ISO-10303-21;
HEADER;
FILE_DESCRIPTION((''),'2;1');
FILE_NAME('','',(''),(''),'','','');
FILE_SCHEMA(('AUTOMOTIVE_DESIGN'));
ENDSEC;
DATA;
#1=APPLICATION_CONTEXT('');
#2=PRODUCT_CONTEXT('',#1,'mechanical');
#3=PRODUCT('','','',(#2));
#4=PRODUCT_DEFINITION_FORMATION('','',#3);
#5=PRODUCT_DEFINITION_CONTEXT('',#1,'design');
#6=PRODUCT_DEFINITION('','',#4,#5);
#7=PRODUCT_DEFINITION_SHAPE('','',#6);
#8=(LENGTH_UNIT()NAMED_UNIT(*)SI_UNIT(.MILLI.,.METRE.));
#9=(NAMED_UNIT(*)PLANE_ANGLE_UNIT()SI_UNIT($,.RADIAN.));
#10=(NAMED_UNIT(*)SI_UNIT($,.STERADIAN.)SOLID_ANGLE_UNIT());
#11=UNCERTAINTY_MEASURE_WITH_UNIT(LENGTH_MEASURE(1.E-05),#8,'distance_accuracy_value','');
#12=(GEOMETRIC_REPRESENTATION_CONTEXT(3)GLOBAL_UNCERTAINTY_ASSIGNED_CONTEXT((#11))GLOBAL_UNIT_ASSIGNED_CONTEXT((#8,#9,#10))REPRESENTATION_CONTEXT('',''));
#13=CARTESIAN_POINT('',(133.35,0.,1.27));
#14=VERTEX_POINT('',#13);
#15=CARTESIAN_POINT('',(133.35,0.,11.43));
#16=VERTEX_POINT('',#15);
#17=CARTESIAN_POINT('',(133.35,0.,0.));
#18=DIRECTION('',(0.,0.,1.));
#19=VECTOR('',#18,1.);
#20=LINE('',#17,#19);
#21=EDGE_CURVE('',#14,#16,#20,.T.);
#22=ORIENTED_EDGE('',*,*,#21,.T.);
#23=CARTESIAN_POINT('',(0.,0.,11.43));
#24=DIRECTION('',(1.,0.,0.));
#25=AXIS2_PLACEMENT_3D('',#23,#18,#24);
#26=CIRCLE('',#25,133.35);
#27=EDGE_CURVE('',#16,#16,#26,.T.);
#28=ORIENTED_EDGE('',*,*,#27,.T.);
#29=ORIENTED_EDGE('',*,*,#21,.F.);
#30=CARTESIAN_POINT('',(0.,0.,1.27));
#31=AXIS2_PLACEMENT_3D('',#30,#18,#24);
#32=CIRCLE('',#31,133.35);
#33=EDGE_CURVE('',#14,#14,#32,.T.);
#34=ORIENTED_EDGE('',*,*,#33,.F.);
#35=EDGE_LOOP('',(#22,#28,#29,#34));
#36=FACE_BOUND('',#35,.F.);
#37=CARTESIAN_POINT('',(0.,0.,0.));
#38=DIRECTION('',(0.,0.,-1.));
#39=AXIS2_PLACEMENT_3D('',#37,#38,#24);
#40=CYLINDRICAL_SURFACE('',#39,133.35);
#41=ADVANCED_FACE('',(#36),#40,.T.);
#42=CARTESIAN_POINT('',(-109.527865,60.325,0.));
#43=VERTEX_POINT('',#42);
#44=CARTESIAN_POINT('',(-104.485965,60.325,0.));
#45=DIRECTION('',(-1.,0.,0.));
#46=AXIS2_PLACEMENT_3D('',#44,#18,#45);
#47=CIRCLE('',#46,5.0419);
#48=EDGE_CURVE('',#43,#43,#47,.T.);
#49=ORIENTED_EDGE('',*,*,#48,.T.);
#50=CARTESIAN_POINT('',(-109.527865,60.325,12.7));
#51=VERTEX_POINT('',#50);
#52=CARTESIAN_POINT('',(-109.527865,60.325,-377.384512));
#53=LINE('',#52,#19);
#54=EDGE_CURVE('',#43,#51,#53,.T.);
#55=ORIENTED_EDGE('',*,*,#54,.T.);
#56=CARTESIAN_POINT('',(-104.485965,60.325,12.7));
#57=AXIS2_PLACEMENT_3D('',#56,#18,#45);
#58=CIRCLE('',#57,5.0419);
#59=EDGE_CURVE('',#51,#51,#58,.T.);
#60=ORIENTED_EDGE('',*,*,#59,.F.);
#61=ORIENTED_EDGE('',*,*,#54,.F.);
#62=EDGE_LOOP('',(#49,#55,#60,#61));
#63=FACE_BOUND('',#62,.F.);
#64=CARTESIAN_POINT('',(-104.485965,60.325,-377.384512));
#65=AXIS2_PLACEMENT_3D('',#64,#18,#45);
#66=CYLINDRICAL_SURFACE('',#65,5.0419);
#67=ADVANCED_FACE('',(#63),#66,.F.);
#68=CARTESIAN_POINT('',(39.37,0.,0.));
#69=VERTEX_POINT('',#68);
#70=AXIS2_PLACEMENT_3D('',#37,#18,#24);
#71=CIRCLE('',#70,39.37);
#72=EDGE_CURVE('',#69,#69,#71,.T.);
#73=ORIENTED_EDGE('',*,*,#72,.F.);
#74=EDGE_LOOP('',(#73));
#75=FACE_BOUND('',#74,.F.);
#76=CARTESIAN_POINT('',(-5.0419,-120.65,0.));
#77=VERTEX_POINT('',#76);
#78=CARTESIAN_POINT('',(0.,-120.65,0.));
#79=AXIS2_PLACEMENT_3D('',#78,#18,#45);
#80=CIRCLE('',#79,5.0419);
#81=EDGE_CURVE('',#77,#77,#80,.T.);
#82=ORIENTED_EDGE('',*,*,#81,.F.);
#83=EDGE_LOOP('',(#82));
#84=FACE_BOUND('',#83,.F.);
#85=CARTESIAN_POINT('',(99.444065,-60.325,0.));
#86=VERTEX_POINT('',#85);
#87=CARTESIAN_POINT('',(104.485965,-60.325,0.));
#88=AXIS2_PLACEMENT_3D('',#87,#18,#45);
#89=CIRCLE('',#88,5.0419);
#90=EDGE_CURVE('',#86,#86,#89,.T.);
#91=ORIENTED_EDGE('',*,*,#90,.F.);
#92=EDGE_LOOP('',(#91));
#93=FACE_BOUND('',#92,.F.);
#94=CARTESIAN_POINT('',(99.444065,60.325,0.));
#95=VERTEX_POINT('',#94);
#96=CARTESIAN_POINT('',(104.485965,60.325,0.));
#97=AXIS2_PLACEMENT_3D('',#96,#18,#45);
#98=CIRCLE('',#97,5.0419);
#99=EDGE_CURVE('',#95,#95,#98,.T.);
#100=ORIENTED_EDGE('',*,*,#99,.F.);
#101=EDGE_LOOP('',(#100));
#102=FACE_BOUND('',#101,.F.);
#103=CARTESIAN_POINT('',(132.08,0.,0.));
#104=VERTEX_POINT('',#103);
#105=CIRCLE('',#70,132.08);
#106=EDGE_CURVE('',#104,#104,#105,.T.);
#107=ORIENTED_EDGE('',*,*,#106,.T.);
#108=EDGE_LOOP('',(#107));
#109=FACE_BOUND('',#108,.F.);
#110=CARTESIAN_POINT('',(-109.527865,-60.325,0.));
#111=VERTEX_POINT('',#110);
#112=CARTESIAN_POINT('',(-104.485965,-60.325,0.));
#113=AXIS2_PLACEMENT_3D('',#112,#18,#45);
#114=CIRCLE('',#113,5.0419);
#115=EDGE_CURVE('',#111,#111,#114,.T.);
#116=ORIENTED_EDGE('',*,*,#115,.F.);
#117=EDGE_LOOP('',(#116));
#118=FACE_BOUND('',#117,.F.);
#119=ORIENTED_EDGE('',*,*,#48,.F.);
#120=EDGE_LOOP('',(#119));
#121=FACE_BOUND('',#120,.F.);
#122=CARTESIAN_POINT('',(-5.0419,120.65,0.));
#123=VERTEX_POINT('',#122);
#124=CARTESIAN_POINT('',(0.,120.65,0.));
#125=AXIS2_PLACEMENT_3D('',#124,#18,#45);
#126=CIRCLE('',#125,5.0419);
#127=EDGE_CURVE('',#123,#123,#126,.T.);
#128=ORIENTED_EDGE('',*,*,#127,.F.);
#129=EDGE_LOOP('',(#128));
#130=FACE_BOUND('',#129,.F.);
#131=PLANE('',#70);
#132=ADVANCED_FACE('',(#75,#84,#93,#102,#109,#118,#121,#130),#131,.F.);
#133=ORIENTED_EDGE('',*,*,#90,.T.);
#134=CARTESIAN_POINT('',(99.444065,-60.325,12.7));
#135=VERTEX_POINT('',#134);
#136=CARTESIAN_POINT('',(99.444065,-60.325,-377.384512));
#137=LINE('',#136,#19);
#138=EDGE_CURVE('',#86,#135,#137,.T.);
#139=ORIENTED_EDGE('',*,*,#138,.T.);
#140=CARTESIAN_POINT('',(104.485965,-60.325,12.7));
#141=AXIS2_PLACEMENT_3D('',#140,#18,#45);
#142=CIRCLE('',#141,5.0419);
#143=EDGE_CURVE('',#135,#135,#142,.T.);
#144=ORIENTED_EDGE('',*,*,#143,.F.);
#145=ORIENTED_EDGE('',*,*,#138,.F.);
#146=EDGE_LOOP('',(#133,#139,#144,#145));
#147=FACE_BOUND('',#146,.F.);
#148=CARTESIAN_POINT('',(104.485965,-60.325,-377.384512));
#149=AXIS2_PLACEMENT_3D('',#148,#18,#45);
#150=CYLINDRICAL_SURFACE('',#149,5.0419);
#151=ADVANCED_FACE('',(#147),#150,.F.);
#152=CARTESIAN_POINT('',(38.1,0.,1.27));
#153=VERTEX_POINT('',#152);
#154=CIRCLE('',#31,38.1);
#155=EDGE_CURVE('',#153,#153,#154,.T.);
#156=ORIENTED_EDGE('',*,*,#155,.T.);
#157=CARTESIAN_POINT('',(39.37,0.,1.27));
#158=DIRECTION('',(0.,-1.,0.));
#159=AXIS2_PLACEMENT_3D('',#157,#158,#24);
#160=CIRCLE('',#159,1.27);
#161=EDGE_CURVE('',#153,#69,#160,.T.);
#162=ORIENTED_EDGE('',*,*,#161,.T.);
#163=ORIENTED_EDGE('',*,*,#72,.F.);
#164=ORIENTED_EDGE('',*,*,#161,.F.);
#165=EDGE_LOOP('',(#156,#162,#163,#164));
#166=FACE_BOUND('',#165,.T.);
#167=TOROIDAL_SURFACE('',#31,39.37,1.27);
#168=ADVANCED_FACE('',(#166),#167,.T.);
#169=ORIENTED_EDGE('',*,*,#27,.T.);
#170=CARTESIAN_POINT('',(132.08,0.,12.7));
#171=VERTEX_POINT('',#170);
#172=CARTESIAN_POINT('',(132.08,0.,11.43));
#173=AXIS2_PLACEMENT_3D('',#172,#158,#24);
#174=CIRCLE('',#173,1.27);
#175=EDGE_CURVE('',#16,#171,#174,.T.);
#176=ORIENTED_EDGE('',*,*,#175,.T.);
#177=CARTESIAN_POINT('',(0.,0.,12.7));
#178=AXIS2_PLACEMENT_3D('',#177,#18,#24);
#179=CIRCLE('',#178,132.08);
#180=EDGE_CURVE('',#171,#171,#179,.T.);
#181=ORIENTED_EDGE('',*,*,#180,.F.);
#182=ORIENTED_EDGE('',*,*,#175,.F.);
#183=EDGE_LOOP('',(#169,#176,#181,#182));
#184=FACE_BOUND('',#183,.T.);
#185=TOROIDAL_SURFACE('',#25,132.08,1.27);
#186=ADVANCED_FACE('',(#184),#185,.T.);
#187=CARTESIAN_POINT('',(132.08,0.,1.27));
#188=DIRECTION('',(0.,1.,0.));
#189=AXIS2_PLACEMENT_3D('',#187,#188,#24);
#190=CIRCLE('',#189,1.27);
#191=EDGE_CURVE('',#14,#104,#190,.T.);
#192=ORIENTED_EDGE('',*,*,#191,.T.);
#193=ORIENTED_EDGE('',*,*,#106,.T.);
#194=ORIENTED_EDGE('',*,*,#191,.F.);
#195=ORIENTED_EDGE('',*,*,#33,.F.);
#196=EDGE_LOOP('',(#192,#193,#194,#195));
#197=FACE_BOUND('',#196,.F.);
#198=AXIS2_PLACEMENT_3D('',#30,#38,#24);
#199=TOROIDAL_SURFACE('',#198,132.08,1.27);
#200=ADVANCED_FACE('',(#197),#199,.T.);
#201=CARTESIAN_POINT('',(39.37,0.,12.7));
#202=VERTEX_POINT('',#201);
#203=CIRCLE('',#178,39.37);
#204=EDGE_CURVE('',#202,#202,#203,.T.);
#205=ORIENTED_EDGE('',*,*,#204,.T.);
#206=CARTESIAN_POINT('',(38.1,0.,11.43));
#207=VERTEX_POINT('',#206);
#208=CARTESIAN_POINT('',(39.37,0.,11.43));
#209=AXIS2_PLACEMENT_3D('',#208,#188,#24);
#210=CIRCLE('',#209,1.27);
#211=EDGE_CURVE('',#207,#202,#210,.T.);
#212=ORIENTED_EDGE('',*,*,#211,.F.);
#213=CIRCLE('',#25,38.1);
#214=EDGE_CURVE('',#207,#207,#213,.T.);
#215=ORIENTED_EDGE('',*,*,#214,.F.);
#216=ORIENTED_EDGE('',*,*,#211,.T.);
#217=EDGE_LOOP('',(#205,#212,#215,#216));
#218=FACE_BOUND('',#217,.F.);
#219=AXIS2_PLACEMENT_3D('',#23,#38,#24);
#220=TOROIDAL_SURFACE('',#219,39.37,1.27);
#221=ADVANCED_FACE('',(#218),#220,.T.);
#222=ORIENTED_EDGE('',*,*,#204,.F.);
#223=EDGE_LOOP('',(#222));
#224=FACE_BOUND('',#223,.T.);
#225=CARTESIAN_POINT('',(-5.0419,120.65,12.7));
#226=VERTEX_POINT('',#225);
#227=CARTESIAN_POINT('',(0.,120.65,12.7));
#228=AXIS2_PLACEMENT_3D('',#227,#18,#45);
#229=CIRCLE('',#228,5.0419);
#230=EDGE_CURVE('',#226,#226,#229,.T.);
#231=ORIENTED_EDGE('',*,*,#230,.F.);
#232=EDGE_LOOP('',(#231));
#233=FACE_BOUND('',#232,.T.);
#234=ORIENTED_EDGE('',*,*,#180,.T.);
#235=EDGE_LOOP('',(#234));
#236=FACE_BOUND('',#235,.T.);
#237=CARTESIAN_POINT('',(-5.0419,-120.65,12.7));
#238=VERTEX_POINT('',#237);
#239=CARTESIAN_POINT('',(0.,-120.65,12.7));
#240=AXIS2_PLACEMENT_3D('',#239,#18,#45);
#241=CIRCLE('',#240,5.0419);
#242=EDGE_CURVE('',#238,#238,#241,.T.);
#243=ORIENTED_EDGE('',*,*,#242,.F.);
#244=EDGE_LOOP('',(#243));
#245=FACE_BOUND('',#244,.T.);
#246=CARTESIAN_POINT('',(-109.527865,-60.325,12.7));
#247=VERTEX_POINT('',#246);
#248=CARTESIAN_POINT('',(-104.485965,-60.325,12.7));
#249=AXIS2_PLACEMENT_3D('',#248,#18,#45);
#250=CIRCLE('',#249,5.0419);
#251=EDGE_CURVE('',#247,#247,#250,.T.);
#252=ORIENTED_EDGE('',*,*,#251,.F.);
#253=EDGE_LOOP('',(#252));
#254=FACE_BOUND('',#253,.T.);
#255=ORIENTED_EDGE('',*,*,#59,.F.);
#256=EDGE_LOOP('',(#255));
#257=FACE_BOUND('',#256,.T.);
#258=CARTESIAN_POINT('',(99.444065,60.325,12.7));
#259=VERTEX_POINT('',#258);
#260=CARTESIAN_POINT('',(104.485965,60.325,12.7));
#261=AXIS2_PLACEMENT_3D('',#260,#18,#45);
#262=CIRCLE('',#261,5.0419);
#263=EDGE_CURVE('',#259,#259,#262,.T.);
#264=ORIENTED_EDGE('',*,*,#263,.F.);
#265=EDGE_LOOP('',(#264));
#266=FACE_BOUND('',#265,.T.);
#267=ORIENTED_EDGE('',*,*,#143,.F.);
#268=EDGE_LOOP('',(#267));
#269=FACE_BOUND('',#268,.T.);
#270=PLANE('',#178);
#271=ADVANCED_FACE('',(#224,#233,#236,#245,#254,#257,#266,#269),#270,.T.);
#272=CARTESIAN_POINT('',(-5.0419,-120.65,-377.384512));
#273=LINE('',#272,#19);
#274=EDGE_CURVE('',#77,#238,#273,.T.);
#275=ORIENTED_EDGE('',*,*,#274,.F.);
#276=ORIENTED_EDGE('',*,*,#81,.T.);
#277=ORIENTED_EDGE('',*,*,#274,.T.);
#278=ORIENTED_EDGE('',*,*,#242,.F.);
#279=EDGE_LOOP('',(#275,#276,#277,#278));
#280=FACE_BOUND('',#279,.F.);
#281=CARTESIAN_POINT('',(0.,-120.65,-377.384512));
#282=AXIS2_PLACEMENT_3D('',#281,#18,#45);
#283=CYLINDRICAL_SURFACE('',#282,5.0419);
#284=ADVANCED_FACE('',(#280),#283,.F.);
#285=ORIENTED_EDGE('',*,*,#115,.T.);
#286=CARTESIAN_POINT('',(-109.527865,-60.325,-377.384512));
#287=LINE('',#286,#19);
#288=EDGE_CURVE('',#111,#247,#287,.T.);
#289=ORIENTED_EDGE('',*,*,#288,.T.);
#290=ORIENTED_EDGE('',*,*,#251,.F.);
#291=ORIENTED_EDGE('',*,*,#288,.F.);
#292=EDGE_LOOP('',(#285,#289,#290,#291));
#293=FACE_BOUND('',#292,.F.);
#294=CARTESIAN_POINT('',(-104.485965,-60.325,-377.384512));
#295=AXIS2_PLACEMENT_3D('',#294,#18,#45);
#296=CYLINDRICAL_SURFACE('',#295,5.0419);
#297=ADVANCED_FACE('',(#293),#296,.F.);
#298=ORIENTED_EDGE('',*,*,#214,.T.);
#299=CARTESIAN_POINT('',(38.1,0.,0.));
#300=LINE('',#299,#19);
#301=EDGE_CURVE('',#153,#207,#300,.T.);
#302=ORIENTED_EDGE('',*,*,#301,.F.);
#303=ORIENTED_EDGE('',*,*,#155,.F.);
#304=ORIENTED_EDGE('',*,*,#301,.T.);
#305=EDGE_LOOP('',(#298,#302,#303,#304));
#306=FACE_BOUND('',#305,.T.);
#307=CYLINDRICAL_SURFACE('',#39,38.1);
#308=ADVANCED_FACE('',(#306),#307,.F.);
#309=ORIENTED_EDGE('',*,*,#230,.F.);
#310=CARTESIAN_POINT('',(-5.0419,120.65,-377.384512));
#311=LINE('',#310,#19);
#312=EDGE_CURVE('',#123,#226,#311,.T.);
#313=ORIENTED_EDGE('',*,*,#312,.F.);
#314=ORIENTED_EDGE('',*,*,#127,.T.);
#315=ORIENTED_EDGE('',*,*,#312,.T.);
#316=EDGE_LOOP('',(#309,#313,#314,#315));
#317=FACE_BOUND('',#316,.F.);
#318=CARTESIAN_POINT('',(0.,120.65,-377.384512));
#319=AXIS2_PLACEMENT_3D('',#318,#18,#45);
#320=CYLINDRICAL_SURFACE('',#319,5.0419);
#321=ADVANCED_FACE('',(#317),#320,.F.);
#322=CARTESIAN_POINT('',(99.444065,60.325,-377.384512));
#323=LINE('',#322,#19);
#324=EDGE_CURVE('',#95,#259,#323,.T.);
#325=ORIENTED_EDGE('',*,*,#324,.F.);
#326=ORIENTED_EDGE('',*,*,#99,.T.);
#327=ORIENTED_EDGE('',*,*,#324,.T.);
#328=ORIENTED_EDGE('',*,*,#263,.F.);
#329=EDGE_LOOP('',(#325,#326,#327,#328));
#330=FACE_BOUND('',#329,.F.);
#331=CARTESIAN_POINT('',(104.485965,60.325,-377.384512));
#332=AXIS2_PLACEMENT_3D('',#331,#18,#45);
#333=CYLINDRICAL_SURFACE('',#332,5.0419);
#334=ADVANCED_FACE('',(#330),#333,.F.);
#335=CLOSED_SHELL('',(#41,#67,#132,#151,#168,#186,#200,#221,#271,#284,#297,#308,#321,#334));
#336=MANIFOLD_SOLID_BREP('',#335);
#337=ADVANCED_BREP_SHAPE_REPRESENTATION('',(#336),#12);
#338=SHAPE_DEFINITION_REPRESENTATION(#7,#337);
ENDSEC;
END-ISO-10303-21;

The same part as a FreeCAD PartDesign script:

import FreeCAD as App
import Part
import Sketcher
Q = App.Units.Quantity


def edges_at(feature, points):
    """Names of the edges that pass closest to the given points."""
    edges = feature.Shape.Edges
    near = lambda p: min(range(len(edges)), key=lambda i: edges[i].distToShape(Part.Vertex(*p))[0])
    return sorted({f"Edge{near(p) + 1}" for p in points})

doc = App.newDocument("Part")
body = doc.addObject("PartDesign::Body", "Body")

# Sketch on XY plane
sketch1 = body.newObject("Sketcher::SketchObject", "Sketch")
sketch1.AttachmentSupport = (doc.getObject("XY_Plane"), [""])
sketch1.MapMode = "FlatFace"
sketch1.addGeometry([
    Part.Circle(App.Vector(0, 0, 0), App.Vector(0, 0, 1), 133.35),
    Part.Circle(App.Vector(0, 0, 0), App.Vector(0, 0, 1), 38.1),
], False)
sketch1.addConstraint([
    Sketcher.Constraint("Coincident", 0, 3, -1, 1),
    Sketcher.Constraint("Coincident", 1, 3, -1, 1),
    Sketcher.Constraint("Diameter", 1, Q("3 in")),
    Sketcher.Constraint("Diameter", 0, Q("10.5 in")),
])
pad1 = body.newObject("PartDesign::Pad", "Pad")
pad1.Profile = sketch1
pad1.Length = Q("0.5 in")
doc.recompute()

fillet = body.newObject("PartDesign::Fillet", "Fillet")
fillet.Base = (pad1, edges_at(pad1, [
    (-38.1, 0, 12.7),
    (-38.1, 0, 0),
    (-133.35, 0, 12.7),
    (-133.35, 0, 0),
]))
fillet.Radius = Q("0.05 in")

# Sketch on XY plane
sketch2 = body.newObject("Sketcher::SketchObject", "Sketch001")
sketch2.AttachmentSupport = (doc.getObject("XY_Plane"), [""])
sketch2.MapMode = "FlatFace"
sketch2.addGeometry([
    Part.Circle(App.Vector(0, 120.65, 0), App.Vector(0, 0, 1), 5.0419),  # 0
    Part.Circle(App.Vector(-104.485965, 60.325, 0), App.Vector(0, 0, 1), 5.0419),  # 1
    Part.Circle(App.Vector(-104.485965, -60.325, 0), App.Vector(0, 0, 1), 5.0419),  # 2
    Part.Circle(App.Vector(0, -120.65, 0), App.Vector(0, 0, 1), 5.0419),  # 3
    Part.Circle(App.Vector(104.485965, -60.325, 0), App.Vector(0, 0, 1), 5.0419),  # 4
    Part.Circle(App.Vector(104.485965, 60.325, 0), App.Vector(0, 0, 1), 5.0419),  # 5
], False)
sketch2.addConstraint([
    Sketcher.Constraint("Equal", 0, 1),
    Sketcher.Constraint("Equal", 1, 2),
    Sketcher.Constraint("Equal", 2, 3),
    Sketcher.Constraint("Equal", 3, 4),
    Sketcher.Constraint("Equal", 4, 5),
    Sketcher.Constraint("Symmetric", 0, 3, 3, 3, -1, 1),
    Sketcher.Constraint("Symmetric", 1, 3, 4, 3, -1, 1),
    Sketcher.Constraint("Symmetric", 2, 3, 5, 3, -1, 1),
    Sketcher.Constraint("Symmetric", 2, 3, 4, 3, -2),
    Sketcher.Constraint("PointOnObject", 0, 3, -2),
    Sketcher.Constraint("Diameter", 0, Q("0.397 in")),
    Sketcher.Constraint("DistanceY", 3, 3, 0, 3, Q("9.5 in")),
    Sketcher.Constraint("DistanceY", 2, 3, 1, 3, Q("4.75 in")),
    Sketcher.Constraint("DistanceX", 2, 3, 4, 3, 208.97193),
])
doc.recompute()
hole = body.newObject("PartDesign::Hole", "Hole")
hole.Profile = sketch2
hole.ThreadType = "None"
hole.Diameter = Q("0.397 in")
hole.DepthType = "ThroughAll"
hole.Reversed = True

doc.recompute()
